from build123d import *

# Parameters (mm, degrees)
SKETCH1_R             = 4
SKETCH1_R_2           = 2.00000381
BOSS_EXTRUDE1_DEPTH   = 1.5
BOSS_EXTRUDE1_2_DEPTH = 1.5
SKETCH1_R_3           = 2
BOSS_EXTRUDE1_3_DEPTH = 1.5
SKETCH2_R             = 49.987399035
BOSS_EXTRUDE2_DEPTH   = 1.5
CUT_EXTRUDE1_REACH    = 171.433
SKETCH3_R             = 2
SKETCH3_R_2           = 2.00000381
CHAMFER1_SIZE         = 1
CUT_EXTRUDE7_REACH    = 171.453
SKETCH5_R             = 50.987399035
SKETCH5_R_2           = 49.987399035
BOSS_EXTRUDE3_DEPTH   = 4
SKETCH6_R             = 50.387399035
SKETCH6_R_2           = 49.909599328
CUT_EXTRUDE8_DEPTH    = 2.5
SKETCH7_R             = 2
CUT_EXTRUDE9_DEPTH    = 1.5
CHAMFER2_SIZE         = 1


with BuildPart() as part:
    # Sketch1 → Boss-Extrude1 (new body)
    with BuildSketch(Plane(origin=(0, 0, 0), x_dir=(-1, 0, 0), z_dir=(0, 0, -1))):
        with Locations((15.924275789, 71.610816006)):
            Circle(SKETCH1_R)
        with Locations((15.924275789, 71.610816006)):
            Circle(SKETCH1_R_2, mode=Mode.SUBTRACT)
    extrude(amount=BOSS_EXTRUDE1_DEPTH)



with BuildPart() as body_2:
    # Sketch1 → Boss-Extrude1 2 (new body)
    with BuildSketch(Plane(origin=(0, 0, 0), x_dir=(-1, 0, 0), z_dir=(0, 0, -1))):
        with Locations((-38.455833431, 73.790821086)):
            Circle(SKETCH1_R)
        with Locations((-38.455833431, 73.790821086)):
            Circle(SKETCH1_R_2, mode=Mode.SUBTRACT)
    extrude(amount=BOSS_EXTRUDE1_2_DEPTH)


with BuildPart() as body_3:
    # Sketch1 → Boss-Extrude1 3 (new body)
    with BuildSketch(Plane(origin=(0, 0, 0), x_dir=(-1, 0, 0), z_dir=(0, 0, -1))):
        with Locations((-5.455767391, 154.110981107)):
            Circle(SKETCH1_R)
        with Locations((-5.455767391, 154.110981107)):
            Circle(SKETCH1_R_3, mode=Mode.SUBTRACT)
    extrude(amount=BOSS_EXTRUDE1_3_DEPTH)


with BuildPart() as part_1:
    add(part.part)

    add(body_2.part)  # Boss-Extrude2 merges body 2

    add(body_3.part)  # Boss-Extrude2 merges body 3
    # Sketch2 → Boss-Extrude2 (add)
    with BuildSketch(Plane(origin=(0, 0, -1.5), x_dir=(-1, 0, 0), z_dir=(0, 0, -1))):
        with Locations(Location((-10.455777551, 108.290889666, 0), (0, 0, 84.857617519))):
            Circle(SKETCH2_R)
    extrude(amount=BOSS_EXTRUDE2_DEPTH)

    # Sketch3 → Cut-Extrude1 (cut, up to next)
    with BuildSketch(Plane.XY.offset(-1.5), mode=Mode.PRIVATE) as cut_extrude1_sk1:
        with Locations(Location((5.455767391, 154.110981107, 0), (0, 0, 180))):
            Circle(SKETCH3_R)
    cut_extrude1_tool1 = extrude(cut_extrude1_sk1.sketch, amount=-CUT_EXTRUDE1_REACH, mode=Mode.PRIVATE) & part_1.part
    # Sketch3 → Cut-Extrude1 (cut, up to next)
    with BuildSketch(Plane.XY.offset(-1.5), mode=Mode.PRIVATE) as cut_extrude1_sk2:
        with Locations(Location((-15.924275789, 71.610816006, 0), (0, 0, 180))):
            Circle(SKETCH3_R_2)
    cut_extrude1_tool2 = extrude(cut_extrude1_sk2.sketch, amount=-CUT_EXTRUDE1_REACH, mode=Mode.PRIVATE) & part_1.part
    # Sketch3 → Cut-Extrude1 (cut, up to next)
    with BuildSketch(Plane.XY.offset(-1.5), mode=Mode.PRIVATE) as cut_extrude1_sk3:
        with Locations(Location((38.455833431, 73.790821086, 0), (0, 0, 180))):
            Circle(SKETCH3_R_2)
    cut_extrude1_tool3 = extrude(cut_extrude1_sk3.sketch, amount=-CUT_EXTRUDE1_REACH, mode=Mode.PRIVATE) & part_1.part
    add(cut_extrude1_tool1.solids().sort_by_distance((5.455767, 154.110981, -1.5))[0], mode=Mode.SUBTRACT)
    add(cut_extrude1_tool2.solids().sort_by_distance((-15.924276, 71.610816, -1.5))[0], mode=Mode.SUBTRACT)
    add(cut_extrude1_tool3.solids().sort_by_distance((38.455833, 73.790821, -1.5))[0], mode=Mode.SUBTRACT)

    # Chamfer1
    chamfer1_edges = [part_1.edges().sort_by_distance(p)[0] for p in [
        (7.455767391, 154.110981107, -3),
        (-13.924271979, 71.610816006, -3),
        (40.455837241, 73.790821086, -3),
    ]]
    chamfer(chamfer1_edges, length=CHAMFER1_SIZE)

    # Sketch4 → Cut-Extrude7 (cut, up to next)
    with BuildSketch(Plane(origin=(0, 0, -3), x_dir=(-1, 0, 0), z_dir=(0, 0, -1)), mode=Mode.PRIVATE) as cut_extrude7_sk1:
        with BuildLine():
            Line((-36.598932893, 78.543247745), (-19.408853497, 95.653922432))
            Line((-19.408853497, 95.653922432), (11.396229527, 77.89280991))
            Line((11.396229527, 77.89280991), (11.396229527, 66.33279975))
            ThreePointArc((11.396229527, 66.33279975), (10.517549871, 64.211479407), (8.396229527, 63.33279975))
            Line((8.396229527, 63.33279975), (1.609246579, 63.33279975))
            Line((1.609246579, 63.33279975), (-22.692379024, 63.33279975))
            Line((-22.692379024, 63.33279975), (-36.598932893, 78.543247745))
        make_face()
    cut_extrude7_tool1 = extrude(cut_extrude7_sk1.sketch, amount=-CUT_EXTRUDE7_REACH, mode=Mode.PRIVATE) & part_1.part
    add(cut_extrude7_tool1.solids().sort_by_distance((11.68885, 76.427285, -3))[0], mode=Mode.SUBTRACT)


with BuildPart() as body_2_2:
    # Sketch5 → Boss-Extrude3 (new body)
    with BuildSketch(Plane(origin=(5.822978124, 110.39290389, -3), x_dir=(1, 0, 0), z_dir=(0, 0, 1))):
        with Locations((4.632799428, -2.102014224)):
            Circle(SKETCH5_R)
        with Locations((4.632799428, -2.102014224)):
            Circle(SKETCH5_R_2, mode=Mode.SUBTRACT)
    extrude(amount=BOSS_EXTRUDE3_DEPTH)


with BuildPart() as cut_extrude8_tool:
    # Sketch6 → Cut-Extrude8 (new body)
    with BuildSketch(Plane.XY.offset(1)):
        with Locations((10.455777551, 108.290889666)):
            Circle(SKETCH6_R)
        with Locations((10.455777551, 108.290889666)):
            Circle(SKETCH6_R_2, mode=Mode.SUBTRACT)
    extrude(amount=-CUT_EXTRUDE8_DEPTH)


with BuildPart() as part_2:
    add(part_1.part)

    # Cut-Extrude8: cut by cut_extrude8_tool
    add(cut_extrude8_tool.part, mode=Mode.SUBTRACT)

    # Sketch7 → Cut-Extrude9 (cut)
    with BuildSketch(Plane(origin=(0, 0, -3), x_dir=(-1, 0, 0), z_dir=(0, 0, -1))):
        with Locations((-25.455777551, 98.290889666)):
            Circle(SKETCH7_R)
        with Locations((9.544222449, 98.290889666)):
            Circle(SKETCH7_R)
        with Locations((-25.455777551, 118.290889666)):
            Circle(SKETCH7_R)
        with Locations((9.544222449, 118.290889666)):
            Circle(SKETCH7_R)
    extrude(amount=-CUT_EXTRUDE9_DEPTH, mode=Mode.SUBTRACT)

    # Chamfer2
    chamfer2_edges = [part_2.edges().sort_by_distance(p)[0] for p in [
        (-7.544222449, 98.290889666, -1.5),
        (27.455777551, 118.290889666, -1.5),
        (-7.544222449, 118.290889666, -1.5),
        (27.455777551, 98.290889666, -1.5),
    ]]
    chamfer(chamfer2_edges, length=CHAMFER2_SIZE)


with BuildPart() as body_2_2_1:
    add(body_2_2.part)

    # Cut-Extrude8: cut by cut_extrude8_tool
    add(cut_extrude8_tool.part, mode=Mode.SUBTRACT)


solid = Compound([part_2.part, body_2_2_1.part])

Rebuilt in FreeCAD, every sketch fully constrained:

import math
import FreeCAD as App
import Part
import Sketcher
from FreeCAD import Vector


def edges_at(feature, points):
    """Names of the edges that pass closest to the given points."""
    edges = feature.Shape.Edges
    near = lambda p: min(range(len(edges)), key=lambda i: edges[i].distToShape(Part.Vertex(*p))[0])
    return sorted({f"Edge{near(p) + 1}" for p in points})

doc = App.newDocument("Part")
params = doc.addObject("Spreadsheet::Sheet", "Params")
for row, (alias, value) in enumerate([
    ("sketch1_diameter", "8 mm"),
    ("pad1_length", "1.5 mm"),
    ("sketch2_diameter", "8 mm"),
    ("pad2_length", "1.5 mm"),
    ("sketch3_diameter", "8 mm"),
    ("sketch3_diameter2", "4 mm"),
    ("pad3_length", "1.5 mm"),
    ("pad4_length", "1.5 mm"),
    ("sketch5_diameter", "4 mm"),
    ("chamfer_size", "1 mm"),
    ("sketch8_radius", "3 mm"),
    ("pad5_length", "4 mm"),
    ("pad6_length", "2.5 mm"),
    ("sketch11_diameter", "4 mm"),
    ("pocket5_length", "1.5 mm"),
    ("chamfer2_size", "1 mm"),
], start=1):
    params.set(f"A{row}", alias)
    params.set(f"B{row}", "=" + value)
    params.setAlias(f"B{row}", alias)

body = doc.addObject("PartDesign::Body", "Body")

# Sketch on XY plane
sketch1 = body.newObject("Sketcher::SketchObject", "Sketch")
sketch1.AttachmentSupport = (doc.getObject("XY_Plane"), [""])
sketch1.MapMode = "FlatFace"
sketch1.addGeometry([
    Part.Circle(Vector(-15.9, 71.6, 0), Vector(0, 0, 1), 4),
    Part.Circle(Vector(-15.9, 71.6, 0), Vector(0, 0, 1), 2),
], False)
sketch1.addConstraint([
    Sketcher.Constraint("Coincident", 1, 3, 0, 3),
    Sketcher.Constraint("Diameter", 0, 8.0),
    Sketcher.Constraint("Diameter", 1, 4.000008),
    Sketcher.Constraint("DistanceX", 0, 3, -1, 1, 15.924276),
    Sketcher.Constraint("DistanceY", -1, 1, 0, 3, 71.610816),
])
sketch1.setExpression("Constraints[1]", "Params.sketch1_diameter")
pad1 = body.newObject("PartDesign::Pad", "Pad")
pad1.Profile = sketch1
pad1.setExpression("Length", "Params.pad1_length")
pad1.Reversed = True
body2 = doc.addObject("PartDesign::Body", "Body001")

# Sketch on XY plane
sketch2 = body2.newObject("Sketcher::SketchObject", "Sketch001")
sketch2.AttachmentSupport = (doc.getObject("XY_Plane001"), [""])
sketch2.MapMode = "FlatFace"
sketch2.addGeometry([
    Part.Circle(Vector(38.5, 73.8, 0), Vector(0, 0, 1), 4),
    Part.Circle(Vector(38.5, 73.8, 0), Vector(0, 0, 1), 2),
], False)
sketch2.addConstraint([
    Sketcher.Constraint("Coincident", 1, 3, 0, 3),
    Sketcher.Constraint("Diameter", 0, 8.0),
    Sketcher.Constraint("Diameter", 1, 4.000008),
    Sketcher.Constraint("DistanceY", -1, 1, 0, 3, 73.790821),
    Sketcher.Constraint("DistanceX", -1, 1, 0, 3, 38.455833),
])
sketch2.setExpression("Constraints[1]", "Params.sketch2_diameter")
pad2 = body2.newObject("PartDesign::Pad", "Pad001")
pad2.Profile = sketch2
pad2.setExpression("Length", "Params.pad2_length")
pad2.Reversed = True
body3 = doc.addObject("PartDesign::Body", "Body002")

# Sketch on XY plane
sketch3 = body3.newObject("Sketcher::SketchObject", "Sketch002")
sketch3.AttachmentSupport = (doc.getObject("XY_Plane002"), [""])
sketch3.MapMode = "FlatFace"
sketch3.addGeometry([
    Part.Circle(Vector(5.5, 154.1, 0), Vector(0, 0, 1), 4),
    Part.Circle(Vector(5.5, 154.1, 0), Vector(0, 0, 1), 2),
], False)
sketch3.addConstraint([
    Sketcher.Constraint("Coincident", 1, 3, 0, 3),
    Sketcher.Constraint("Diameter", 0, 8.0),
    Sketcher.Constraint("Diameter", 1, 4.0),
    Sketcher.Constraint("DistanceY", -1, 1, 0, 3, 154.110981),
    Sketcher.Constraint("DistanceX", -1, 1, 0, 3, 5.455767),
])
sketch3.setExpression("Constraints[1]", "Params.sketch3_diameter")
sketch3.setExpression("Constraints[2]", "Params.sketch3_diameter2")
pad3 = body3.newObject("PartDesign::Pad", "Pad002")
pad3.Profile = sketch3
pad3.setExpression("Length", "Params.pad3_length")
pad3.Reversed = True
body.AllowCompound = True
doc.recompute()

boolean = body.newObject("PartDesign::Boolean", "Boolean")
boolean.Type = "Fuse"
boolean.addObjects([body2])
doc.recompute()

boolean2 = body.newObject("PartDesign::Boolean", "Boolean001")
boolean2.Type = "Fuse"
boolean2.addObjects([body3])

# Sketch on XY plane
sketch4 = body.newObject("Sketcher::SketchObject", "Sketch003")
sketch4.AttachmentSupport = (doc.getObject("XY_Plane"), [""])
sketch4.MapMode = "FlatFace"
sketch4.AttachmentOffset = App.Placement(Vector(0, 0, -1.5), App.Rotation())
sketch4.addGeometry(Part.Circle(Vector(10, 108, 0), Vector(0, 0, 1), 50), False)
sketch4.addConstraint([
    Sketcher.Constraint("Diameter", 0, 99.974798),
    Sketcher.Constraint("DistanceY", -1, 1, 0, 3, 108.29089),
    Sketcher.Constraint("DistanceX", -1, 1, 0, 3, 10.455778),
])
pad4 = body.newObject("PartDesign::Pad", "Pad003")
pad4.Profile = sketch4
pad4.setExpression("Length", "Params.pad4_length")
pad4.Reversed = True

# Sketch on XY plane
sketch5 = body.newObject("Sketcher::SketchObject", "Sketch004")
sketch5.AttachmentSupport = (doc.getObject("XY_Plane"), [""])
sketch5.MapMode = "FlatFace"
sketch5.AttachmentOffset = App.Placement(Vector(0, 0, -1.5), App.Rotation())
sketch5.addGeometry(Part.Circle(Vector(5.5, 154.1, 0), Vector(0, 0, 1), 2), False)
sketch5.addConstraint([
    Sketcher.Constraint("Diameter", 0, 4.0),
    Sketcher.Constraint("DistanceY", -1, 1, 0, 3, 154.110981),
    Sketcher.Constraint("DistanceX", -1, 1, 0, 3, 5.455767),
])
sketch5.setExpression("Constraints[0]", "Params.sketch5_diameter")
pocket1 = body.newObject("PartDesign::Pocket", "Pocket")
pocket1.Profile = sketch5
pocket1.Type = "UpToFirst"

# Sketch on XY plane
sketch6 = body.newObject("Sketcher::SketchObject", "Sketch005")
sketch6.AttachmentSupport = (doc.getObject("XY_Plane"), [""])
sketch6.MapMode = "FlatFace"
sketch6.AttachmentOffset = App.Placement(Vector(0, 0, -1.5), App.Rotation())
sketch6.addGeometry(Part.Circle(Vector(-15.9, 71.6, 0), Vector(0, 0, 1), 2), False)
sketch6.addConstraint([
    Sketcher.Constraint("Diameter", 0, 4.000008),
    Sketcher.Constraint("DistanceX", 0, 3, -1, 1, 15.924276),
    Sketcher.Constraint("DistanceY", -1, 1, 0, 3, 71.610816),
])
pocket2 = body.newObject("PartDesign::Pocket", "Pocket001")
pocket2.Profile = sketch6
pocket2.Type = "UpToFirst"

# Sketch on XY plane
sketch7 = body.newObject("Sketcher::SketchObject", "Sketch006")
sketch7.AttachmentSupport = (doc.getObject("XY_Plane"), [""])
sketch7.MapMode = "FlatFace"
sketch7.AttachmentOffset = App.Placement(Vector(0, 0, -1.5), App.Rotation())
sketch7.addGeometry(Part.Circle(Vector(38.5, 73.8, 0), Vector(0, 0, 1), 2), False)
sketch7.addConstraint([
    Sketcher.Constraint("Diameter", 0, 4.000008),
    Sketcher.Constraint("DistanceY", -1, 1, 0, 3, 73.790821),
    Sketcher.Constraint("DistanceX", -1, 1, 0, 3, 38.455833),
])
pocket3 = body.newObject("PartDesign::Pocket", "Pocket002")
pocket3.Profile = sketch7
pocket3.Type = "UpToFirst"
doc.recompute()

chamfer = body.newObject("PartDesign::Chamfer", "Chamfer")
chamfer.Base = (pocket3, edges_at(pocket3, [(7.456, 154.111, -3), (-13.924, 71.611, -3), (40.456, 73.791, -3)]))
chamfer.setExpression("Size", "Params.chamfer_size")

# Sketch on XY plane
sketch8 = body.newObject("Sketcher::SketchObject", "Sketch007")
sketch8.AttachmentSupport = (doc.getObject("XY_Plane"), [""])
sketch8.MapMode = "FlatFace"
sketch8.AttachmentOffset = App.Placement(Vector(0, 0, -3), App.Rotation())
sketch8.addGeometry([
    Part.LineSegment(Vector(19.4, 95.7, 0), Vector(36.6, 78.5, 0)),  # 0
    Part.LineSegment(Vector(36.6, 78.5, 0), Vector(22.7, 63.3, 0)),  # 1
    Part.LineSegment(Vector(22.7, 63.3, 0), Vector(-8.4, 63.3, 0)),  # 2
    Part.ArcOfCircle(Part.Circle(Vector(-8.4, 66.3, 0), Vector(0, 0, 1), 3), math.radians(180), math.radians(270)),  # 3
    Part.LineSegment(Vector(-11.4, 66.3, 0), Vector(-11.4, 77.9, 0)),  # 4
    Part.LineSegment(Vector(-11.4, 77.9, 0), Vector(19.4, 95.7, 0)),  # 5
], False)
sketch8.addConstraint([
    Sketcher.Constraint("Coincident", 0, 2, 1, 1),
    Sketcher.Constraint("Coincident", 1, 2, 2, 1),
    Sketcher.Constraint("Tangent", 2, 2, 3, 2),
    Sketcher.Constraint("Tangent", 3, 1, 4, 1),
    Sketcher.Constraint("Coincident", 4, 2, 5, 1),
    Sketcher.Constraint("Coincident", 5, 2, 0, 1),
    Sketcher.Constraint("Horizontal", 2),
    Sketcher.Constraint("Vertical", 4),
    Sketcher.Constraint("Radius", 3, 3.0),
    Sketcher.Constraint("DistanceX", 2, 2, 2, 1, 31.088609),
    Sketcher.Constraint("DistanceY", 4, 1, 4, 2, 11.56001),
    Sketcher.Constraint("DistanceY", -1, 1, 3, 3, 66.3328),
    Sketcher.Constraint("Distance", 0, 24.254361),
    Sketcher.Constraint("DistanceX", 3, 3, -1, 1, 8.39623),
    Sketcher.Constraint("DistanceX", 5, 2, 0, 2, 17.190079),
    Sketcher.Constraint("Distance", 1, 20.609463),
    Sketcher.Constraint("Distance", 5, 35.558547),
])
sketch8.setExpression("Constraints[8]", "Params.sketch8_radius")
pocket4 = body.newObject("PartDesign::Pocket", "Pocket003")
pocket4.Profile = sketch8
pocket4.Type = "UpToFirst"
pocket4.Reversed = True
body4 = doc.addObject("PartDesign::Body", "Body003")

# Sketch on XY plane
sketch9 = body4.newObject("Sketcher::SketchObject", "Sketch008")
sketch9.AttachmentSupport = (doc.getObject("XY_Plane003"), [""])
sketch9.MapMode = "FlatFace"
sketch9.AttachmentOffset = App.Placement(Vector(0, 0, -3), App.Rotation())
sketch9.addGeometry([
    Part.Circle(Vector(10, 108, 0), Vector(0, 0, 1), 51),
    Part.Circle(Vector(10, 108, 0), Vector(0, 0, 1), 50),
], False)
sketch9.addConstraint([
    Sketcher.Constraint("Coincident", 1, 3, 0, 3),
    Sketcher.Constraint("Diameter", 0, 101.974798),
    Sketcher.Constraint("Diameter", 1, 99.974798),
    Sketcher.Constraint("DistanceY", -1, 1, 0, 3, 108.29089),
    Sketcher.Constraint("DistanceX", -1, 1, 0, 3, 10.455778),
])
pad5 = body4.newObject("PartDesign::Pad", "Pad004")
pad5.Profile = sketch9
pad5.setExpression("Length", "Params.pad5_length")
body5 = doc.addObject("PartDesign::Body", "Body004")

# Sketch on XY plane
sketch10 = body5.newObject("Sketcher::SketchObject", "Sketch009")
sketch10.AttachmentSupport = (doc.getObject("XY_Plane004"), [""])
sketch10.MapMode = "FlatFace"
sketch10.AttachmentOffset = App.Placement(Vector(0, 0, 1), App.Rotation())
sketch10.addGeometry([
    Part.Circle(Vector(10, 108, 0), Vector(0, 0, 1), 50),
    Part.Circle(Vector(10, 108, 0), Vector(0, 0, 1), 50),
], False)
sketch10.addConstraint([
    Sketcher.Constraint("Coincident", 1, 3, 0, 3),
    Sketcher.Constraint("Diameter", 0, 100.774798),
    Sketcher.Constraint("Diameter", 1, 99.819199),
    Sketcher.Constraint("DistanceY", -1, 1, 0, 3, 108.29089),
    Sketcher.Constraint("DistanceX", -1, 1, 0, 3, 10.455778),
])
pad6 = body5.newObject("PartDesign::Pad", "Pad005")
pad6.Profile = sketch10
pad6.setExpression("Length", "Params.pad6_length")
pad6.Reversed = True
doc.recompute()

body6 = doc.addObject("PartDesign::Body", "Body005")
body6.BaseFeature = body5
boolean3 = body.newObject("PartDesign::Boolean", "Boolean002")
boolean3.Type = "Cut"
boolean3.addObjects([body6])
doc.recompute()

# Sketch on XY plane
sketch11 = body.newObject("Sketcher::SketchObject", "Sketch010")
sketch11.AttachmentSupport = (doc.getObject("XY_Plane"), [""])
sketch11.MapMode = "FlatFace"
sketch11.AttachmentOffset = App.Placement(Vector(0, 0, -3), App.Rotation())
sketch11.addGeometry([
    Part.Circle(Vector(25.5, 98.3, 0), Vector(0, 0, 1), 2),
    Part.Circle(Vector(-9.5, 98.3, 0), Vector(0, 0, 1), 2),
    Part.Circle(Vector(25.5, 118.3, 0), Vector(0, 0, 1), 2),
    Part.Circle(Vector(-9.5, 118.3, 0), Vector(0, 0, 1), 2),
], False)
sketch11.addConstraint([
    Sketcher.Constraint("Equal", 0, 1),
    Sketcher.Constraint("Equal", 1, 2),
    Sketcher.Constraint("Equal", 2, 3),
    Sketcher.Constraint("Horizontal", 0, 3, 1, 3),
    Sketcher.Constraint("Horizontal", 2, 3, 3, 3),
    Sketcher.Constraint("Vertical", 0, 3, 2, 3),
    Sketcher.Constraint("Vertical", 1, 3, 3, 3),
    Sketcher.Constraint("Diameter", 0, 4.0),
    Sketcher.Constraint("DistanceX", 1, 3, 0, 3, 35.0),
    Sketcher.Constraint("DistanceY", 0, 3, 2, 3, 20.0),
    Sketcher.Constraint("DistanceY", -1, 1, 0, 3, 98.29089),
    Sketcher.Constraint("DistanceX", -1, 1, 0, 3, 25.455778),
])
sketch11.setExpression("Constraints[7]", "Params.sketch11_diameter")
pocket5 = body.newObject("PartDesign::Pocket", "Pocket004")
pocket5.Profile = sketch11
pocket5.setExpression("Length", "Params.pocket5_length")
pocket5.Reversed = True
doc.recompute()

chamfer2 = body.newObject("PartDesign::Chamfer", "Chamfer001")
chamfer2.Base = (pocket5, edges_at(pocket5, [
    (-7.544, 98.291, -1.5),
    (27.456, 118.291, -1.5),
    (-7.544, 118.291, -1.5),
    (27.456, 98.291, -1.5),
]))
chamfer2.setExpression("Size", "Params.chamfer2_size")
doc.recompute()

boolean4 = body4.newObject("PartDesign::Boolean", "Boolean003")
boolean4.Type = "Cut"
boolean4.addObjects([body5])

doc.recompute()
